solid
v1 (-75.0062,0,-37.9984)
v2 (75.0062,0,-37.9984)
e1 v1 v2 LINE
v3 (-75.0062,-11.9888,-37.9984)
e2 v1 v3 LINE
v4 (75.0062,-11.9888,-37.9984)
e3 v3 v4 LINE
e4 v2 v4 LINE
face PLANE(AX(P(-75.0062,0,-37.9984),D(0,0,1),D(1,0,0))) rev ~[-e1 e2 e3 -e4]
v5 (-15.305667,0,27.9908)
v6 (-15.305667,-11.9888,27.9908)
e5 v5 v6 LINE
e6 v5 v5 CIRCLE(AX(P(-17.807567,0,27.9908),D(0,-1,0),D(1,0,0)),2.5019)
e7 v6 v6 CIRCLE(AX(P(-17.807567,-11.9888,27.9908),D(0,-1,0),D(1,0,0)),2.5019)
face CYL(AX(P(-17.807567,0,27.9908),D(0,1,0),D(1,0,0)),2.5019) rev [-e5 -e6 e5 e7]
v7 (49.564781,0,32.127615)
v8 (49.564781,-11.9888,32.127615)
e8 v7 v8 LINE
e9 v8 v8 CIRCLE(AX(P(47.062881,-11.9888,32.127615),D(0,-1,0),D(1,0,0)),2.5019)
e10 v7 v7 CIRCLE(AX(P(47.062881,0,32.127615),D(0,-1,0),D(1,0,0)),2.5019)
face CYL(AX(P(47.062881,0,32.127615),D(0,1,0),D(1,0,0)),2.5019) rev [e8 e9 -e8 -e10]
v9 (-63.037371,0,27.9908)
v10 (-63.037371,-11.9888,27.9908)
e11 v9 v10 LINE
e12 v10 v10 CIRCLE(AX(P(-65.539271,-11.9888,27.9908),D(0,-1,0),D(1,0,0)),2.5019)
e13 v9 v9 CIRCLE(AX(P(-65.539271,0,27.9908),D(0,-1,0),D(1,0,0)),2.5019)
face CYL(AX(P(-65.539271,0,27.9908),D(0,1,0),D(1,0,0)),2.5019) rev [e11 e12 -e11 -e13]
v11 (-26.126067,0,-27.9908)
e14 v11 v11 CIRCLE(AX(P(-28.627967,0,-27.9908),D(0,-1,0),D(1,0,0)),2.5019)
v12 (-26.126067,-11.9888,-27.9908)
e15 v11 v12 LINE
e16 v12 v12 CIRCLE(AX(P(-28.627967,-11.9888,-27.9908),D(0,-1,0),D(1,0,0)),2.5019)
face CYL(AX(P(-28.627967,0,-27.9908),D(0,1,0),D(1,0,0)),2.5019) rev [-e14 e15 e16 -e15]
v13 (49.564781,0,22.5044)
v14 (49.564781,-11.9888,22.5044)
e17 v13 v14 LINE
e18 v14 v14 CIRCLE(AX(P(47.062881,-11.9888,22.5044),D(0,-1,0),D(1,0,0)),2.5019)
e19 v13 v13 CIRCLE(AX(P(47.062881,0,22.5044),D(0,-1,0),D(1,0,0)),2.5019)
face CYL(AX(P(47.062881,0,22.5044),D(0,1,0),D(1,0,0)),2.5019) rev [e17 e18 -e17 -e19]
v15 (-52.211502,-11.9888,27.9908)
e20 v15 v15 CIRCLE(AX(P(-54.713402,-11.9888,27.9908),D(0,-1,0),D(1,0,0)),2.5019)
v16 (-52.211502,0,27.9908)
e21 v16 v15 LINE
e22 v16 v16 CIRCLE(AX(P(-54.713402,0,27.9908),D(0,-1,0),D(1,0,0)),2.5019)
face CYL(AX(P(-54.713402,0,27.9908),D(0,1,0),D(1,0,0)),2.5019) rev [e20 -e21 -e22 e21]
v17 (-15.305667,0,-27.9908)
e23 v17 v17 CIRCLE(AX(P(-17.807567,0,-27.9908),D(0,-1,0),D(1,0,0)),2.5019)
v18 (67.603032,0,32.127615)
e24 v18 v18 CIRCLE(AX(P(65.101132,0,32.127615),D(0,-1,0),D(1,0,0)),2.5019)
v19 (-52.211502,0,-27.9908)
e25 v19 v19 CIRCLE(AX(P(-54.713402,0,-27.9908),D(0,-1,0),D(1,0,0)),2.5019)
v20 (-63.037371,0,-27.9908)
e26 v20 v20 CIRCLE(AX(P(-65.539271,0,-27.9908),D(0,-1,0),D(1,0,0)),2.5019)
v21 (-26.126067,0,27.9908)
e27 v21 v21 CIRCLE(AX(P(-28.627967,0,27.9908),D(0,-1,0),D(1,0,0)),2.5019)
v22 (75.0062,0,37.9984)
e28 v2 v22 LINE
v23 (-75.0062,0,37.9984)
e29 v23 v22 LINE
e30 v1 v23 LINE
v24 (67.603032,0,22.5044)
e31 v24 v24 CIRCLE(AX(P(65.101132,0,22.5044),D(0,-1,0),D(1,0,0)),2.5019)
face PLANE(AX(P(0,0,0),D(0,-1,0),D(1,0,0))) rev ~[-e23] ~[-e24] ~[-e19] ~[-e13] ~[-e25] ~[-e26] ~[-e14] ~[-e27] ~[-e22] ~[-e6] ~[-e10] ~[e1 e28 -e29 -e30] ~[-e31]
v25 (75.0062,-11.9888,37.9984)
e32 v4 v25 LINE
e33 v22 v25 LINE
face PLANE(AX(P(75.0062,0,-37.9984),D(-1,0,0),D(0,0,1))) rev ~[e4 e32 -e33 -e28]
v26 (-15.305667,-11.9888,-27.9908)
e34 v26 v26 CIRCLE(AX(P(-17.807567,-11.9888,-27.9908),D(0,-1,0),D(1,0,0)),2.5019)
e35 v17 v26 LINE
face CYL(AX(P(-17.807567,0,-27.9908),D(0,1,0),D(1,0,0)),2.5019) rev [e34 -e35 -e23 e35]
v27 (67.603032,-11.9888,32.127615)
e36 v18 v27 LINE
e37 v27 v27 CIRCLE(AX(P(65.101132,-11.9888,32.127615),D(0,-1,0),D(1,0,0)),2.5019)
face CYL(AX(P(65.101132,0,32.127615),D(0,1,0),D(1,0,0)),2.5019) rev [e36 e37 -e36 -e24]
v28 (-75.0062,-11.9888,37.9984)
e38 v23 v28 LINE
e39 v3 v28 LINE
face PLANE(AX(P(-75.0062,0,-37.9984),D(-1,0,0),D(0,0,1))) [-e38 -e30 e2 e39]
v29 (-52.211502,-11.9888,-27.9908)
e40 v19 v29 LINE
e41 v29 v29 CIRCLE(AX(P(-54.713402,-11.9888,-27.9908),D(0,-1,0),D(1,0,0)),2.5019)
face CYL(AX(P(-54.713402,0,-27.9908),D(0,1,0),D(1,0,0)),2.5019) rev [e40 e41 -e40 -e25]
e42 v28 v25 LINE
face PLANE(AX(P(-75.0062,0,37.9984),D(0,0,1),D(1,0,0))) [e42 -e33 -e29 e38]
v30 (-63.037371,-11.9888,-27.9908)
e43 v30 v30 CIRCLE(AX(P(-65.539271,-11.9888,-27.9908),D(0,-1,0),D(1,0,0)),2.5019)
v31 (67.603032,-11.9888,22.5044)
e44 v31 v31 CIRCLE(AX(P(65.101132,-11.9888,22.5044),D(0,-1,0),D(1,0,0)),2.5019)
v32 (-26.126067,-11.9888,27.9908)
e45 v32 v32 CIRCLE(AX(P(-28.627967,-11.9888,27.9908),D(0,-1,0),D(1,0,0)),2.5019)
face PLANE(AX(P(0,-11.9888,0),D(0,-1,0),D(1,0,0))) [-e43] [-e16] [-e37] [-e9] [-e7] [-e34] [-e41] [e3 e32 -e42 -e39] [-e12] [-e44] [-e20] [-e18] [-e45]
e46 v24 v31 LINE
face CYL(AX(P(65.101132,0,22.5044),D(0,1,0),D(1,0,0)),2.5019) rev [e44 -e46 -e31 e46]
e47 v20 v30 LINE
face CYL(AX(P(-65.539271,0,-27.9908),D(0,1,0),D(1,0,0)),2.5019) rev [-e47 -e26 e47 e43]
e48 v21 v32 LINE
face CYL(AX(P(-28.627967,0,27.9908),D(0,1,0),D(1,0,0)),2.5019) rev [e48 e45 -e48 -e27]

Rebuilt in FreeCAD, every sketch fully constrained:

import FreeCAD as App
import Part
import Sketcher

V = App.Vector
Q = App.Units.Quantity


def add_polygon(sketch, points):
    """Adds a closed chain of lines whose ends are joined by coincident constraints."""
    first, n = sketch.GeometryCount, len(points)
    for a, b in zip(points, points[1:] + points[:1]):
        sketch.addGeometry(Part.LineSegment(App.Vector(*a, 0), App.Vector(*b, 0)), False)
    for i in range(n):
        sketch.addConstraint(Sketcher.Constraint("Coincident", first + i, 2, first + (i + 1) % n, 1))

doc = App.newDocument("Part")
params = doc.addObject("Spreadsheet::Sheet", "Params")
for row, (alias, value) in enumerate([
    ("sketch1_diameter", "0.197 in"),
    ("sketch1_width", "5.906 in"),
    ("sketch1_height", "2.992 in"),
    ("pad1_length", "0.472 in"),
], start=1):
    params.set(f"A{row}", alias)
    params.set(f"B{row}", "=" + value)
    params.setAlias(f"B{row}", alias)

body = doc.addObject("PartDesign::Body", "Body")

sketch1 = body.newObject("Sketcher::SketchObject", "Sketch")
sketch1.AttachmentSupport = (doc.getObject("XZ_Plane"), [""])
sketch1.MapMode = "FlatFace"
add_polygon(sketch1, [(-75, 38), (-75, -38), (75, -38), (75, 38)])
sketch1.addGeometry(Part.Circle(V(-65.5, -28, 0), V(0, 0, 1), 2.5), False)
sketch1.addGeometry(Part.Circle(V(-54.7, -28, 0), V(0, 0, 1), 2.5), False)
sketch1.addGeometry(Part.Circle(V(-28.6, -28, 0), V(0, 0, 1), 2.5), False)
sketch1.addGeometry(Part.Circle(V(-17.8, -28, 0), V(0, 0, 1), 2.5), False)
sketch1.addGeometry(Part.Circle(V(-65.5, 28, 0), V(0, 0, 1), 2.5), False)
sketch1.addGeometry(Part.Circle(V(-54.7, 28, 0), V(0, 0, 1), 2.5), False)
sketch1.addGeometry(Part.Circle(V(-28.6, 28, 0), V(0, 0, 1), 2.5), False)
sketch1.addGeometry(Part.Circle(V(-17.8, 28, 0), V(0, 0, 1), 2.5), False)
sketch1.addGeometry(Part.Circle(V(47.1, 22.5, 0), V(0, 0, 1), 2.5), False)
sketch1.addGeometry(Part.Circle(V(65.1, 22.5, 0), V(0, 0, 1), 2.5), False)
sketch1.addGeometry(Part.Circle(V(47.1, 32.1, 0), V(0, 0, 1), 2.5), False)
sketch1.addGeometry(Part.Circle(V(65.1, 32.1, 0), V(0, 0, 1), 2.5), False)
sketch1.addConstraint([
    Sketcher.Constraint("Vertical", 0),
    Sketcher.Constraint("Horizontal", 1),
    Sketcher.Constraint("Vertical", 2),
    Sketcher.Constraint("Horizontal", 3),
    Sketcher.Constraint("Equal", 4, 5),
    Sketcher.Constraint("Equal", 5, 6),
    Sketcher.Constraint("Equal", 6, 7),
    Sketcher.Constraint("Equal", 7, 8),
    Sketcher.Constraint("Equal", 8, 9),
    Sketcher.Constraint("Equal", 9, 10),
    Sketcher.Constraint("Equal", 10, 11),
    Sketcher.Constraint("Equal", 11, 12),
    Sketcher.Constraint("Equal", 12, 13),
    Sketcher.Constraint("Equal", 13, 14),
    Sketcher.Constraint("Equal", 14, 15),
    Sketcher.Constraint("Symmetric", 0, 2, 2, 2, -1, 1),
    Sketcher.Constraint("Symmetric", 4, 3, 8, 3, -1),
    Sketcher.Constraint("Symmetric", 5, 3, 9, 3, -1),
    Sketcher.Constraint("Symmetric", 6, 3, 10, 3, -1),
    Sketcher.Constraint("Symmetric", 7, 3, 11, 3, -1),
    Sketcher.Constraint("Horizontal", 4, 3, 5, 3),
    Sketcher.Constraint("Horizontal", 5, 3, 6, 3),
    Sketcher.Constraint("Horizontal", 6, 3, 7, 3),
    Sketcher.Constraint("Horizontal", 12, 3, 13, 3),
    Sketcher.Constraint("Horizontal", 14, 3, 15, 3),
    Sketcher.Constraint("Vertical", 12, 3, 14, 3),
    Sketcher.Constraint("Vertical", 13, 3, 15, 3),
    Sketcher.Constraint("Diameter", 4, Q("0.197 in")),
    Sketcher.Constraint("DistanceX", 1, 1, 1, 2, Q("5.906 in")),
    Sketcher.Constraint("DistanceY", 0, 2, 0, 1, Q("2.992 in")),
    Sketcher.Constraint("DistanceY", 13, 3, 2, 2, Q("0.61 in")),
    Sketcher.Constraint("DistanceY", 4, 3, -1, 1, Q("1.102 in")),
    Sketcher.Constraint("DistanceX", 6, 3, 7, 3, Q("0.426 in")),
    Sketcher.Constraint("DistanceX", 11, 3, 13, 3, 82.908699),
    Sketcher.Constraint("DistanceX", 0, 2, 5, 3, 20.292798),
    Sketcher.Constraint("DistanceX", 4, 3, -1, 1, 65.539271),
    Sketcher.Constraint("DistanceX", -1, 1, 12, 3, 47.062881),
    Sketcher.Constraint("DistanceX", 10, 3, 12, 3, 75.690848),
    Sketcher.Constraint("DistanceY", -1, 1, 14, 3, 32.127615),
])
sketch1.setExpression("Constraints[31]", "Params.sketch1_diameter")
sketch1.setExpression("Constraints[32]", "Params.sketch1_width")
sketch1.setExpression("Constraints[33]", "Params.sketch1_height")
pad1 = body.newObject("PartDesign::Pad", "Pad")
pad1.Profile = sketch1
pad1.setExpression("Length", "Params.pad1_length")

doc.recompute()
